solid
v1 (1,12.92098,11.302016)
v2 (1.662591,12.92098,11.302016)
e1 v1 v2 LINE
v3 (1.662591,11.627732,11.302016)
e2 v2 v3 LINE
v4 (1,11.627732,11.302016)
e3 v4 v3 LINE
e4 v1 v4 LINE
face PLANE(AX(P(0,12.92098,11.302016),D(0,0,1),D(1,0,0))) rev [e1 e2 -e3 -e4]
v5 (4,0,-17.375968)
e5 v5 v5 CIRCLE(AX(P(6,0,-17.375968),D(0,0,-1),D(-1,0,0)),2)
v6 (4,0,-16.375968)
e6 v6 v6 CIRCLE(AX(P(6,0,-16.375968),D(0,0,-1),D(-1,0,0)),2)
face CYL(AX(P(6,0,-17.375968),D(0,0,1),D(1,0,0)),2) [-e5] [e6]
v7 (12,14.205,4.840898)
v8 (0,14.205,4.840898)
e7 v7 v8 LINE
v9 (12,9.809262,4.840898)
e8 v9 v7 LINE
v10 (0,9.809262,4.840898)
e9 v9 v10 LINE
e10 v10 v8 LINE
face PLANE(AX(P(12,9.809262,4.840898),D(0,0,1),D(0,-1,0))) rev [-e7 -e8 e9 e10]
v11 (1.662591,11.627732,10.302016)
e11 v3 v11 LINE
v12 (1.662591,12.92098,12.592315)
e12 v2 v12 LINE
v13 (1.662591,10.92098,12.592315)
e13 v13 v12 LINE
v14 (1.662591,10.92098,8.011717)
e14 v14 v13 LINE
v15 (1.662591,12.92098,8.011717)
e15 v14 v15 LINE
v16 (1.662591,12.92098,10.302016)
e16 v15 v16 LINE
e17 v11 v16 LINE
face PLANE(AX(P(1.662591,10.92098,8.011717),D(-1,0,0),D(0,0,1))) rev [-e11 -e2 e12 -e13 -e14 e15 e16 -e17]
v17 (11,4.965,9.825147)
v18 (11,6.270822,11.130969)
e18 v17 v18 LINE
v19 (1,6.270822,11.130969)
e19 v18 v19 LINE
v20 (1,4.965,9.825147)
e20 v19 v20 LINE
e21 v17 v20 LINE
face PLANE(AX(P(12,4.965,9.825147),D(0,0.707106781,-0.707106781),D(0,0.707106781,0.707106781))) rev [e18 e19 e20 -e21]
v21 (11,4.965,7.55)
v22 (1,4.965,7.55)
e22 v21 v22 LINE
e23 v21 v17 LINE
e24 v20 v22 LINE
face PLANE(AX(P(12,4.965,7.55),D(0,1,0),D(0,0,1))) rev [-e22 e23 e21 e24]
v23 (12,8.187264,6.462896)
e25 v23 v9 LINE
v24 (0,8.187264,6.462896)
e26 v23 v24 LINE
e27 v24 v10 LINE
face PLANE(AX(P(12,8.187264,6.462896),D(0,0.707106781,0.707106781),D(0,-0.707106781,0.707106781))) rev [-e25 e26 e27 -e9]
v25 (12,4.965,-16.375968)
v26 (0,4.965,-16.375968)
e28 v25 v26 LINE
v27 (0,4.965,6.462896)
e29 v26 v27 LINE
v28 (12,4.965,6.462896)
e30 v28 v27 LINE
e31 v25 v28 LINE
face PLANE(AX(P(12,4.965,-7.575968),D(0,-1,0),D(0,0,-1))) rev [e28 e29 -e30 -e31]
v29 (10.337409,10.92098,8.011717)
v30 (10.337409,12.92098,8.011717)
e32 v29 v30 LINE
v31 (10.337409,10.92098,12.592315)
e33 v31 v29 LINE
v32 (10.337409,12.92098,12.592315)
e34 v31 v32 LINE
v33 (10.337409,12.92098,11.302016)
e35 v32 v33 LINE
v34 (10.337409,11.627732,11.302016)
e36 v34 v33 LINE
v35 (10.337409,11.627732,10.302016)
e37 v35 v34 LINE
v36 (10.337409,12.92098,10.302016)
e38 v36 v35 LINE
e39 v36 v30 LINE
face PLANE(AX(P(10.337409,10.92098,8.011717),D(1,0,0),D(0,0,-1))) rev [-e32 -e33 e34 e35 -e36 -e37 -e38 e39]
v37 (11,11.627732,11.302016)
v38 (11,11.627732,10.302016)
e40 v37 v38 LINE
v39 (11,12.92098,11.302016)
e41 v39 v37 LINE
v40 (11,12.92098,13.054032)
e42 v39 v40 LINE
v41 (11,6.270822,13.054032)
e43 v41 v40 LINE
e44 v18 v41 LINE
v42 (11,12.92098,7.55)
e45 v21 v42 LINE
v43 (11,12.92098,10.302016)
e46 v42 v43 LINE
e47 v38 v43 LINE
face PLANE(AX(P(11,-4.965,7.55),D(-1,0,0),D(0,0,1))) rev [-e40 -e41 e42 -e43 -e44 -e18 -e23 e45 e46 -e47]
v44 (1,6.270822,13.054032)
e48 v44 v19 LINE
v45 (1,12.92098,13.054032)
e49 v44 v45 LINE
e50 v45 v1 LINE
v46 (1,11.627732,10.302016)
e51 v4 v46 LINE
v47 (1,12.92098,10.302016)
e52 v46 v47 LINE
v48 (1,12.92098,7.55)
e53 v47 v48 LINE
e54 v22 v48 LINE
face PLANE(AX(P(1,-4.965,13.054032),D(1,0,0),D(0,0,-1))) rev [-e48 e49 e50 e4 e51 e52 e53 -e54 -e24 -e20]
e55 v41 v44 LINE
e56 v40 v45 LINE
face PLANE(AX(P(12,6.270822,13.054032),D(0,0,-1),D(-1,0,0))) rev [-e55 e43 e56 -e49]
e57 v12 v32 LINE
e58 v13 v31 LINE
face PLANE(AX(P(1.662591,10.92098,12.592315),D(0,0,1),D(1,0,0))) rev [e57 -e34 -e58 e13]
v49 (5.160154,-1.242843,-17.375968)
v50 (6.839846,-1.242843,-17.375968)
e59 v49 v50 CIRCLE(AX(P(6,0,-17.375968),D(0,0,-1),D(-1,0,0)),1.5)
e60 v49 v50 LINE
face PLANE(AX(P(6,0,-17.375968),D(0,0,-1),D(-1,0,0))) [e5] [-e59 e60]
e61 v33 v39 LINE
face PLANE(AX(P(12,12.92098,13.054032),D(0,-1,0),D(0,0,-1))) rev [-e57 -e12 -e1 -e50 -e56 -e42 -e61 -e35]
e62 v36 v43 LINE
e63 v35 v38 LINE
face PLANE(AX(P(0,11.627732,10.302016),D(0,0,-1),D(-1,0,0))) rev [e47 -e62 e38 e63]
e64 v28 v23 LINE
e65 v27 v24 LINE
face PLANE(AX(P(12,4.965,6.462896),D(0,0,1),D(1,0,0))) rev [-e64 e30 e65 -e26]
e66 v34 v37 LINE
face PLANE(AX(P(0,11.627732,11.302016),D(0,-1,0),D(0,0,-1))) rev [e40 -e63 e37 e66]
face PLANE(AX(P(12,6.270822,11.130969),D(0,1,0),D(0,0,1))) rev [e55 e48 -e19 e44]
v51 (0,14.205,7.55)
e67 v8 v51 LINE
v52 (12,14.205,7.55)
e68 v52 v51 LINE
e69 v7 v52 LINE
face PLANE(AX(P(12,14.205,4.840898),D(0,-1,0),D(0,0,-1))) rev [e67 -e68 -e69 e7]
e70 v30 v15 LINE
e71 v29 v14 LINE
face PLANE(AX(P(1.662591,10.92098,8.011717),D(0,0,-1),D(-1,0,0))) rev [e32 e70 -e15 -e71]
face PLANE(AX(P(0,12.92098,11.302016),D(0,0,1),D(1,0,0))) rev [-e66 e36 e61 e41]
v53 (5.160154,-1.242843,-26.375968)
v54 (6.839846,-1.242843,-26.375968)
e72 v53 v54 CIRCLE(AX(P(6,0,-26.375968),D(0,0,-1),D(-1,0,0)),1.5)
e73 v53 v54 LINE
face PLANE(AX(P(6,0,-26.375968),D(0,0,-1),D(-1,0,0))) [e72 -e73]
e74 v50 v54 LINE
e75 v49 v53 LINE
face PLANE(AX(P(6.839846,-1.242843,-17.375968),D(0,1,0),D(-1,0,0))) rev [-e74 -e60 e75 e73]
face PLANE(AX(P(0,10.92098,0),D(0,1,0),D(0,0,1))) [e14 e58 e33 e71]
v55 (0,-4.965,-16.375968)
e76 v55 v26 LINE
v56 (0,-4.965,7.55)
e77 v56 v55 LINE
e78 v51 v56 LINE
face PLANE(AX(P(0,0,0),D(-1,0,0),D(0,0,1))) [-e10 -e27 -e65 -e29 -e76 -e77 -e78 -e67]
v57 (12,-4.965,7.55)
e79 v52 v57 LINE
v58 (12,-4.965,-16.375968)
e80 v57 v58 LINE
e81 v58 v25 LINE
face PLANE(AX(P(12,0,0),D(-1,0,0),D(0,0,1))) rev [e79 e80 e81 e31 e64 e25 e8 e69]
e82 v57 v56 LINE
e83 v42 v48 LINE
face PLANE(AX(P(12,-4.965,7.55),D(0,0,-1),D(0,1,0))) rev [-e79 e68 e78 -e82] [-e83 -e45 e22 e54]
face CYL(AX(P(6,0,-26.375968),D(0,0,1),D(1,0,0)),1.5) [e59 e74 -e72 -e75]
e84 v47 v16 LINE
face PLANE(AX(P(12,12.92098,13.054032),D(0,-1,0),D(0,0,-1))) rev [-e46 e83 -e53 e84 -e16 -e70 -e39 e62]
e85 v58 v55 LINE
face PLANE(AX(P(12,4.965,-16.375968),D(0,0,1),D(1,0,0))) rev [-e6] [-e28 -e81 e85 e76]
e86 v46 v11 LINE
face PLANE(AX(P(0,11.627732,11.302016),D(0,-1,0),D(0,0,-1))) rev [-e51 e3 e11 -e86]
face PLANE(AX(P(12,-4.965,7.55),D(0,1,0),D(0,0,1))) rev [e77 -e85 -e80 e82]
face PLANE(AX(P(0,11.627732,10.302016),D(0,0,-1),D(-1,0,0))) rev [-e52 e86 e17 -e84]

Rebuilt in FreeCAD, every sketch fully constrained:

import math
import FreeCAD as App
import Part
import Sketcher
from FreeCAD import Vector
Q = App.Units.Quantity


def add_polygon(sketch, points):
    """Adds a closed chain of lines whose ends are joined by coincident constraints."""
    first, n = sketch.GeometryCount, len(points)
    for a, b in zip(points, points[1:] + points[:1]):
        sketch.addGeometry(Part.LineSegment(App.Vector(*a, 0), App.Vector(*b, 0)), False)
    for i in range(n):
        sketch.addConstraint(Sketcher.Constraint("Coincident", first + i, 2, first + (i + 1) % n, 1))

doc = App.newDocument("Part")
body = doc.addObject("PartDesign::Body", "Body")

# Sketch on YZ plane
sketch1 = body.newObject("Sketcher::SketchObject", "Sketch")
sketch1.AttachmentSupport = (doc.getObject("YZ_Plane"), [""])
sketch1.MapMode = "FlatFace"
add_polygon(sketch1, [(5, 6.5), (8.2, 6.5), (9.8, 4.8), (14.2, 4.8), (14.2, 7.5), (12.9, 7.5), (12.9, 13.1), (6.3, 13.1), (6.3, 11.1), (5, 9.8), (5, 7.5), (-5, 7.5), (-5, -16.4), (5, -16.4)])  # lines 0-13
sketch1.addConstraint([
    Sketcher.Constraint("Horizontal", 0),
    Sketcher.Constraint("Horizontal", 2),
    Sketcher.Constraint("Vertical", 3),
    Sketcher.Constraint("Horizontal", 4),
    Sketcher.Constraint("Vertical", 5),
    Sketcher.Constraint("Horizontal", 6),
    Sketcher.Constraint("Vertical", 7),
    Sketcher.Constraint("Vertical", 9),
    Sketcher.Constraint("Horizontal", 10),
    Sketcher.Constraint("Vertical", 11),
    Sketcher.Constraint("Horizontal", 12),
    Sketcher.Constraint("Vertical", 13),
    Sketcher.Constraint("Perpendicular", 1, 8),
    Sketcher.Constraint("Horizontal", 4, 2, 9, 2),
    Sketcher.Constraint("Vertical", 9, 2, 12, 2),
    Sketcher.Constraint("Angle", 1, Q("-45 deg")),
    Sketcher.Constraint("DistanceX", 10, 2, 10, 1, Q("9.93 mm")),
    Sketcher.Constraint("DistanceY", -1, 1, 3, 2, Q("7.55 mm")),
    Sketcher.Constraint("DistanceX", 12, 2, 2, 2, Q("9.24 mm")),
    Sketcher.Constraint("DistanceY", 3, 1, 3, 2, Q("2.709102 mm")),
    Sketcher.Constraint("DistanceX", -1, 1, 2, 2, Q("14.205 mm")),
    Sketcher.Constraint("DistanceX", 0, 2, 1, 2, Q("1.621998 mm")),
    Sketcher.Constraint("DistanceX", 2, 1, 2, 2, Q("4.395738 mm")),
    Sketcher.Constraint("DistanceX", 4, 2, 4, 1, Q("1.28402 mm")),
    Sketcher.Constraint("DistanceX", 6, 2, 6, 1, Q("6.650158 mm")),
    Sketcher.Constraint("DistanceY", 5, 1, 5, 2, Q("5.504032 mm")),
    Sketcher.Constraint("DistanceY", 7, 2, 7, 1, Q("1.923063 mm")),
    Sketcher.Constraint("DistanceY", 11, 2, 11, 1, Q("23.925968 mm")),
])
pad1 = body.newObject("PartDesign::Pad", "Pad")
pad1.Profile = sketch1
pad1.Length = 12

# Sketch on XY plane
sketch2 = body.newObject("Sketcher::SketchObject", "Sketch001")
sketch2.AttachmentSupport = (doc.getObject("XY_Plane"), [""])
sketch2.MapMode = "FlatFace"
sketch2.AttachmentOffset = App.Placement(Vector(0, 0, -16.375968), App.Rotation())
sketch2.addGeometry(Part.Circle(Vector(6, 0, 0), Vector(0, 0, 1), 2), False)
sketch2.addConstraint([
    Sketcher.Constraint("PointOnObject", 0, 3, -1),
    Sketcher.Constraint("Diameter", 0, Q("4 mm")),
    Sketcher.Constraint("DistanceX", -1, 1, 0, 3, Q("6 mm")),
])
pad2 = body.newObject("PartDesign::Pad", "Pad001")
pad2.Profile = sketch2
pad2.Length = 1
pad2.Reversed = True

# Sketch on XY plane
sketch3 = body.newObject("Sketcher::SketchObject", "Sketch002")
sketch3.AttachmentSupport = (doc.getObject("XY_Plane"), [""])
sketch3.MapMode = "FlatFace"
sketch3.AttachmentOffset = App.Placement(Vector(0, 0, -17.375968), App.Rotation())
sketch3.addGeometry(Part.Circle(Vector(6, 0, 0), Vector(0, 0, 1), 1.5), False)
sketch3.addConstraint([
    Sketcher.Constraint("PointOnObject", 0, 3, -1),
    Sketcher.Constraint("Diameter", 0, Q("3 mm")),
    Sketcher.Constraint("DistanceX", -1, 1, 0, 3, Q("6 mm")),
])
pad3 = body.newObject("PartDesign::Pad", "Pad002")
pad3.Profile = sketch3
pad3.Length = 9
pad3.Reversed = True

# Sketch on XY plane
sketch4 = body.newObject("Sketcher::SketchObject", "Sketch003")
sketch4.AttachmentSupport = (doc.getObject("XY_Plane"), [""])
sketch4.MapMode = "FlatFace"
sketch4.AttachmentOffset = App.Placement(Vector(0, 0, -17.375968), App.Rotation())
sketch4.addGeometry([
    Part.LineSegment(Vector(5.2, -1.2, 0), Vector(6.8, -1.2, 0)),
    Part.ArcOfCircle(Part.Circle(Vector(6, 0, 0), Vector(0, 0, 1), 1.5), math.radians(-124), math.radians(-56)),
], False)
sketch4.addConstraint([
    Sketcher.Constraint("Coincident", 0, 1, 1, 1),
    Sketcher.Constraint("Coincident", 1, 2, 0, 2),
    Sketcher.Constraint("Horizontal", 0),
    Sketcher.Constraint("PointOnObject", 1, 3, -1),
    Sketcher.Constraint("Radius", 1, Q("1.5 mm")),
    Sketcher.Constraint("DistanceX", -1, 1, 1, 3, Q("6 mm")),
    Sketcher.Constraint("DistanceX", 0, 1, 0, 2, Q("1.679691 mm")),
])
pocket1 = body.newObject("PartDesign::Pocket", "Pocket")
pocket1.Profile = sketch4
pocket1.Length = 9

# Sketch on XZ plane
sketch5 = body.newObject("Sketcher::SketchObject", "Sketch004")
sketch5.AttachmentSupport = (doc.getObject("XZ_Plane"), [""])
sketch5.MapMode = "FlatFace"
sketch5.AttachmentOffset = App.Placement(Vector(0, 0, -12.92098), App.Rotation())
add_polygon(sketch5, [(11, 7.6), (11, 13.1), (12, 13.1), (12, 7.6)])  # lines 0-3
add_polygon(sketch5, [(0, 7.6), (0, 13.1), (1, 13.1), (1, 7.6)])  # lines 4-7
sketch5.addConstraint([
    Sketcher.Constraint("Vertical", 0),
    Sketcher.Constraint("Horizontal", 1),
    Sketcher.Constraint("Vertical", 2),
    Sketcher.Constraint("Horizontal", 3),
    Sketcher.Constraint("Vertical", 4),
    Sketcher.Constraint("Horizontal", 5),
    Sketcher.Constraint("Vertical", 6),
    Sketcher.Constraint("Horizontal", 7),
    Sketcher.Constraint("PointOnObject", 4, 2, -2),
    Sketcher.Constraint("Horizontal", 1, 2, 4, 2),
    Sketcher.Constraint("Horizontal", 3, 2, 6, 2),
    Sketcher.Constraint("Equal", 3, 5),
    Sketcher.Constraint("DistanceX", 1, 1, 1, 2, Q("1 mm")),
    Sketcher.Constraint("DistanceX", -1, 1, 0, 2, Q("11 mm")),
    Sketcher.Constraint("DistanceY", -1, 1, 2, 2, Q("7.55 mm")),
    Sketcher.Constraint("DistanceY", 0, 1, 0, 2, Q("5.504032 mm")),
])
pocket2 = body.newObject("PartDesign::Pocket", "Pocket001")
pocket2.Profile = sketch5
pocket2.Type = "ThroughAll"
pocket2.Reversed = True

# Sketch on YZ plane
sketch6 = body.newObject("Sketcher::SketchObject", "Sketch005")
sketch6.AttachmentSupport = (doc.getObject("YZ_Plane"), [""])
sketch6.MapMode = "FlatFace"
sketch6.AttachmentOffset = App.Placement(Vector(0, 0, 11), App.Rotation())
add_polygon(sketch6, [(12.9, 11.3), (11.6, 11.3), (11.6, 10.3), (12.9, 10.3)])  # lines 0-3
sketch6.addConstraint([
    Sketcher.Constraint("Horizontal", 0),
    Sketcher.Constraint("Vertical", 1),
    Sketcher.Constraint("Horizontal", 2),
    Sketcher.Constraint("Vertical", 3),
    Sketcher.Constraint("DistanceY", 1, 2, 1, 1, Q("1 mm")),
    Sketcher.Constraint("DistanceX", 0, 2, 0, 1, Q("1.293248 mm")),
    Sketcher.Constraint("DistanceX", -1, 1, 2, 2, Q("12.92098 mm")),
    Sketcher.Constraint("DistanceY", -1, 1, 0, 2, Q("11.302016 mm")),
])
pocket3 = body.newObject("PartDesign::Pocket", "Pocket002")
pocket3.Profile = sketch6
pocket3.Type = "ThroughAll"

# Sketch on XZ plane
sketch7 = body.newObject("Sketcher::SketchObject", "Sketch006")
sketch7.AttachmentSupport = (doc.getObject("XZ_Plane"), [""])
sketch7.MapMode = "FlatFace"
sketch7.AttachmentOffset = App.Placement(Vector(0, 0, -12.92098), App.Rotation())
add_polygon(sketch7, [(1.7, 8), (1.7, 12.6), (10.3, 12.6), (10.3, 8)])  # lines 0-3
sketch7.addConstraint([
    Sketcher.Constraint("Vertical", 0),
    Sketcher.Constraint("Horizontal", 1),
    Sketcher.Constraint("Vertical", 2),
    Sketcher.Constraint("Horizontal", 3),
    Sketcher.Constraint("DistanceY", 0, 1, 0, 2, Q("4.580598 mm")),
    Sketcher.Constraint("DistanceX", 1, 1, 1, 2, Q("8.674818 mm")),
    Sketcher.Constraint("DistanceX", -1, 1, 0, 2, Q("1.662591 mm")),
    Sketcher.Constraint("DistanceY", -1, 1, 0, 2, Q("12.592315 mm")),
])
pocket4 = body.newObject("PartDesign::Pocket", "Pocket003")
pocket4.Profile = sketch7
pocket4.Length = 2
pocket4.Reversed = True

doc.recompute()
